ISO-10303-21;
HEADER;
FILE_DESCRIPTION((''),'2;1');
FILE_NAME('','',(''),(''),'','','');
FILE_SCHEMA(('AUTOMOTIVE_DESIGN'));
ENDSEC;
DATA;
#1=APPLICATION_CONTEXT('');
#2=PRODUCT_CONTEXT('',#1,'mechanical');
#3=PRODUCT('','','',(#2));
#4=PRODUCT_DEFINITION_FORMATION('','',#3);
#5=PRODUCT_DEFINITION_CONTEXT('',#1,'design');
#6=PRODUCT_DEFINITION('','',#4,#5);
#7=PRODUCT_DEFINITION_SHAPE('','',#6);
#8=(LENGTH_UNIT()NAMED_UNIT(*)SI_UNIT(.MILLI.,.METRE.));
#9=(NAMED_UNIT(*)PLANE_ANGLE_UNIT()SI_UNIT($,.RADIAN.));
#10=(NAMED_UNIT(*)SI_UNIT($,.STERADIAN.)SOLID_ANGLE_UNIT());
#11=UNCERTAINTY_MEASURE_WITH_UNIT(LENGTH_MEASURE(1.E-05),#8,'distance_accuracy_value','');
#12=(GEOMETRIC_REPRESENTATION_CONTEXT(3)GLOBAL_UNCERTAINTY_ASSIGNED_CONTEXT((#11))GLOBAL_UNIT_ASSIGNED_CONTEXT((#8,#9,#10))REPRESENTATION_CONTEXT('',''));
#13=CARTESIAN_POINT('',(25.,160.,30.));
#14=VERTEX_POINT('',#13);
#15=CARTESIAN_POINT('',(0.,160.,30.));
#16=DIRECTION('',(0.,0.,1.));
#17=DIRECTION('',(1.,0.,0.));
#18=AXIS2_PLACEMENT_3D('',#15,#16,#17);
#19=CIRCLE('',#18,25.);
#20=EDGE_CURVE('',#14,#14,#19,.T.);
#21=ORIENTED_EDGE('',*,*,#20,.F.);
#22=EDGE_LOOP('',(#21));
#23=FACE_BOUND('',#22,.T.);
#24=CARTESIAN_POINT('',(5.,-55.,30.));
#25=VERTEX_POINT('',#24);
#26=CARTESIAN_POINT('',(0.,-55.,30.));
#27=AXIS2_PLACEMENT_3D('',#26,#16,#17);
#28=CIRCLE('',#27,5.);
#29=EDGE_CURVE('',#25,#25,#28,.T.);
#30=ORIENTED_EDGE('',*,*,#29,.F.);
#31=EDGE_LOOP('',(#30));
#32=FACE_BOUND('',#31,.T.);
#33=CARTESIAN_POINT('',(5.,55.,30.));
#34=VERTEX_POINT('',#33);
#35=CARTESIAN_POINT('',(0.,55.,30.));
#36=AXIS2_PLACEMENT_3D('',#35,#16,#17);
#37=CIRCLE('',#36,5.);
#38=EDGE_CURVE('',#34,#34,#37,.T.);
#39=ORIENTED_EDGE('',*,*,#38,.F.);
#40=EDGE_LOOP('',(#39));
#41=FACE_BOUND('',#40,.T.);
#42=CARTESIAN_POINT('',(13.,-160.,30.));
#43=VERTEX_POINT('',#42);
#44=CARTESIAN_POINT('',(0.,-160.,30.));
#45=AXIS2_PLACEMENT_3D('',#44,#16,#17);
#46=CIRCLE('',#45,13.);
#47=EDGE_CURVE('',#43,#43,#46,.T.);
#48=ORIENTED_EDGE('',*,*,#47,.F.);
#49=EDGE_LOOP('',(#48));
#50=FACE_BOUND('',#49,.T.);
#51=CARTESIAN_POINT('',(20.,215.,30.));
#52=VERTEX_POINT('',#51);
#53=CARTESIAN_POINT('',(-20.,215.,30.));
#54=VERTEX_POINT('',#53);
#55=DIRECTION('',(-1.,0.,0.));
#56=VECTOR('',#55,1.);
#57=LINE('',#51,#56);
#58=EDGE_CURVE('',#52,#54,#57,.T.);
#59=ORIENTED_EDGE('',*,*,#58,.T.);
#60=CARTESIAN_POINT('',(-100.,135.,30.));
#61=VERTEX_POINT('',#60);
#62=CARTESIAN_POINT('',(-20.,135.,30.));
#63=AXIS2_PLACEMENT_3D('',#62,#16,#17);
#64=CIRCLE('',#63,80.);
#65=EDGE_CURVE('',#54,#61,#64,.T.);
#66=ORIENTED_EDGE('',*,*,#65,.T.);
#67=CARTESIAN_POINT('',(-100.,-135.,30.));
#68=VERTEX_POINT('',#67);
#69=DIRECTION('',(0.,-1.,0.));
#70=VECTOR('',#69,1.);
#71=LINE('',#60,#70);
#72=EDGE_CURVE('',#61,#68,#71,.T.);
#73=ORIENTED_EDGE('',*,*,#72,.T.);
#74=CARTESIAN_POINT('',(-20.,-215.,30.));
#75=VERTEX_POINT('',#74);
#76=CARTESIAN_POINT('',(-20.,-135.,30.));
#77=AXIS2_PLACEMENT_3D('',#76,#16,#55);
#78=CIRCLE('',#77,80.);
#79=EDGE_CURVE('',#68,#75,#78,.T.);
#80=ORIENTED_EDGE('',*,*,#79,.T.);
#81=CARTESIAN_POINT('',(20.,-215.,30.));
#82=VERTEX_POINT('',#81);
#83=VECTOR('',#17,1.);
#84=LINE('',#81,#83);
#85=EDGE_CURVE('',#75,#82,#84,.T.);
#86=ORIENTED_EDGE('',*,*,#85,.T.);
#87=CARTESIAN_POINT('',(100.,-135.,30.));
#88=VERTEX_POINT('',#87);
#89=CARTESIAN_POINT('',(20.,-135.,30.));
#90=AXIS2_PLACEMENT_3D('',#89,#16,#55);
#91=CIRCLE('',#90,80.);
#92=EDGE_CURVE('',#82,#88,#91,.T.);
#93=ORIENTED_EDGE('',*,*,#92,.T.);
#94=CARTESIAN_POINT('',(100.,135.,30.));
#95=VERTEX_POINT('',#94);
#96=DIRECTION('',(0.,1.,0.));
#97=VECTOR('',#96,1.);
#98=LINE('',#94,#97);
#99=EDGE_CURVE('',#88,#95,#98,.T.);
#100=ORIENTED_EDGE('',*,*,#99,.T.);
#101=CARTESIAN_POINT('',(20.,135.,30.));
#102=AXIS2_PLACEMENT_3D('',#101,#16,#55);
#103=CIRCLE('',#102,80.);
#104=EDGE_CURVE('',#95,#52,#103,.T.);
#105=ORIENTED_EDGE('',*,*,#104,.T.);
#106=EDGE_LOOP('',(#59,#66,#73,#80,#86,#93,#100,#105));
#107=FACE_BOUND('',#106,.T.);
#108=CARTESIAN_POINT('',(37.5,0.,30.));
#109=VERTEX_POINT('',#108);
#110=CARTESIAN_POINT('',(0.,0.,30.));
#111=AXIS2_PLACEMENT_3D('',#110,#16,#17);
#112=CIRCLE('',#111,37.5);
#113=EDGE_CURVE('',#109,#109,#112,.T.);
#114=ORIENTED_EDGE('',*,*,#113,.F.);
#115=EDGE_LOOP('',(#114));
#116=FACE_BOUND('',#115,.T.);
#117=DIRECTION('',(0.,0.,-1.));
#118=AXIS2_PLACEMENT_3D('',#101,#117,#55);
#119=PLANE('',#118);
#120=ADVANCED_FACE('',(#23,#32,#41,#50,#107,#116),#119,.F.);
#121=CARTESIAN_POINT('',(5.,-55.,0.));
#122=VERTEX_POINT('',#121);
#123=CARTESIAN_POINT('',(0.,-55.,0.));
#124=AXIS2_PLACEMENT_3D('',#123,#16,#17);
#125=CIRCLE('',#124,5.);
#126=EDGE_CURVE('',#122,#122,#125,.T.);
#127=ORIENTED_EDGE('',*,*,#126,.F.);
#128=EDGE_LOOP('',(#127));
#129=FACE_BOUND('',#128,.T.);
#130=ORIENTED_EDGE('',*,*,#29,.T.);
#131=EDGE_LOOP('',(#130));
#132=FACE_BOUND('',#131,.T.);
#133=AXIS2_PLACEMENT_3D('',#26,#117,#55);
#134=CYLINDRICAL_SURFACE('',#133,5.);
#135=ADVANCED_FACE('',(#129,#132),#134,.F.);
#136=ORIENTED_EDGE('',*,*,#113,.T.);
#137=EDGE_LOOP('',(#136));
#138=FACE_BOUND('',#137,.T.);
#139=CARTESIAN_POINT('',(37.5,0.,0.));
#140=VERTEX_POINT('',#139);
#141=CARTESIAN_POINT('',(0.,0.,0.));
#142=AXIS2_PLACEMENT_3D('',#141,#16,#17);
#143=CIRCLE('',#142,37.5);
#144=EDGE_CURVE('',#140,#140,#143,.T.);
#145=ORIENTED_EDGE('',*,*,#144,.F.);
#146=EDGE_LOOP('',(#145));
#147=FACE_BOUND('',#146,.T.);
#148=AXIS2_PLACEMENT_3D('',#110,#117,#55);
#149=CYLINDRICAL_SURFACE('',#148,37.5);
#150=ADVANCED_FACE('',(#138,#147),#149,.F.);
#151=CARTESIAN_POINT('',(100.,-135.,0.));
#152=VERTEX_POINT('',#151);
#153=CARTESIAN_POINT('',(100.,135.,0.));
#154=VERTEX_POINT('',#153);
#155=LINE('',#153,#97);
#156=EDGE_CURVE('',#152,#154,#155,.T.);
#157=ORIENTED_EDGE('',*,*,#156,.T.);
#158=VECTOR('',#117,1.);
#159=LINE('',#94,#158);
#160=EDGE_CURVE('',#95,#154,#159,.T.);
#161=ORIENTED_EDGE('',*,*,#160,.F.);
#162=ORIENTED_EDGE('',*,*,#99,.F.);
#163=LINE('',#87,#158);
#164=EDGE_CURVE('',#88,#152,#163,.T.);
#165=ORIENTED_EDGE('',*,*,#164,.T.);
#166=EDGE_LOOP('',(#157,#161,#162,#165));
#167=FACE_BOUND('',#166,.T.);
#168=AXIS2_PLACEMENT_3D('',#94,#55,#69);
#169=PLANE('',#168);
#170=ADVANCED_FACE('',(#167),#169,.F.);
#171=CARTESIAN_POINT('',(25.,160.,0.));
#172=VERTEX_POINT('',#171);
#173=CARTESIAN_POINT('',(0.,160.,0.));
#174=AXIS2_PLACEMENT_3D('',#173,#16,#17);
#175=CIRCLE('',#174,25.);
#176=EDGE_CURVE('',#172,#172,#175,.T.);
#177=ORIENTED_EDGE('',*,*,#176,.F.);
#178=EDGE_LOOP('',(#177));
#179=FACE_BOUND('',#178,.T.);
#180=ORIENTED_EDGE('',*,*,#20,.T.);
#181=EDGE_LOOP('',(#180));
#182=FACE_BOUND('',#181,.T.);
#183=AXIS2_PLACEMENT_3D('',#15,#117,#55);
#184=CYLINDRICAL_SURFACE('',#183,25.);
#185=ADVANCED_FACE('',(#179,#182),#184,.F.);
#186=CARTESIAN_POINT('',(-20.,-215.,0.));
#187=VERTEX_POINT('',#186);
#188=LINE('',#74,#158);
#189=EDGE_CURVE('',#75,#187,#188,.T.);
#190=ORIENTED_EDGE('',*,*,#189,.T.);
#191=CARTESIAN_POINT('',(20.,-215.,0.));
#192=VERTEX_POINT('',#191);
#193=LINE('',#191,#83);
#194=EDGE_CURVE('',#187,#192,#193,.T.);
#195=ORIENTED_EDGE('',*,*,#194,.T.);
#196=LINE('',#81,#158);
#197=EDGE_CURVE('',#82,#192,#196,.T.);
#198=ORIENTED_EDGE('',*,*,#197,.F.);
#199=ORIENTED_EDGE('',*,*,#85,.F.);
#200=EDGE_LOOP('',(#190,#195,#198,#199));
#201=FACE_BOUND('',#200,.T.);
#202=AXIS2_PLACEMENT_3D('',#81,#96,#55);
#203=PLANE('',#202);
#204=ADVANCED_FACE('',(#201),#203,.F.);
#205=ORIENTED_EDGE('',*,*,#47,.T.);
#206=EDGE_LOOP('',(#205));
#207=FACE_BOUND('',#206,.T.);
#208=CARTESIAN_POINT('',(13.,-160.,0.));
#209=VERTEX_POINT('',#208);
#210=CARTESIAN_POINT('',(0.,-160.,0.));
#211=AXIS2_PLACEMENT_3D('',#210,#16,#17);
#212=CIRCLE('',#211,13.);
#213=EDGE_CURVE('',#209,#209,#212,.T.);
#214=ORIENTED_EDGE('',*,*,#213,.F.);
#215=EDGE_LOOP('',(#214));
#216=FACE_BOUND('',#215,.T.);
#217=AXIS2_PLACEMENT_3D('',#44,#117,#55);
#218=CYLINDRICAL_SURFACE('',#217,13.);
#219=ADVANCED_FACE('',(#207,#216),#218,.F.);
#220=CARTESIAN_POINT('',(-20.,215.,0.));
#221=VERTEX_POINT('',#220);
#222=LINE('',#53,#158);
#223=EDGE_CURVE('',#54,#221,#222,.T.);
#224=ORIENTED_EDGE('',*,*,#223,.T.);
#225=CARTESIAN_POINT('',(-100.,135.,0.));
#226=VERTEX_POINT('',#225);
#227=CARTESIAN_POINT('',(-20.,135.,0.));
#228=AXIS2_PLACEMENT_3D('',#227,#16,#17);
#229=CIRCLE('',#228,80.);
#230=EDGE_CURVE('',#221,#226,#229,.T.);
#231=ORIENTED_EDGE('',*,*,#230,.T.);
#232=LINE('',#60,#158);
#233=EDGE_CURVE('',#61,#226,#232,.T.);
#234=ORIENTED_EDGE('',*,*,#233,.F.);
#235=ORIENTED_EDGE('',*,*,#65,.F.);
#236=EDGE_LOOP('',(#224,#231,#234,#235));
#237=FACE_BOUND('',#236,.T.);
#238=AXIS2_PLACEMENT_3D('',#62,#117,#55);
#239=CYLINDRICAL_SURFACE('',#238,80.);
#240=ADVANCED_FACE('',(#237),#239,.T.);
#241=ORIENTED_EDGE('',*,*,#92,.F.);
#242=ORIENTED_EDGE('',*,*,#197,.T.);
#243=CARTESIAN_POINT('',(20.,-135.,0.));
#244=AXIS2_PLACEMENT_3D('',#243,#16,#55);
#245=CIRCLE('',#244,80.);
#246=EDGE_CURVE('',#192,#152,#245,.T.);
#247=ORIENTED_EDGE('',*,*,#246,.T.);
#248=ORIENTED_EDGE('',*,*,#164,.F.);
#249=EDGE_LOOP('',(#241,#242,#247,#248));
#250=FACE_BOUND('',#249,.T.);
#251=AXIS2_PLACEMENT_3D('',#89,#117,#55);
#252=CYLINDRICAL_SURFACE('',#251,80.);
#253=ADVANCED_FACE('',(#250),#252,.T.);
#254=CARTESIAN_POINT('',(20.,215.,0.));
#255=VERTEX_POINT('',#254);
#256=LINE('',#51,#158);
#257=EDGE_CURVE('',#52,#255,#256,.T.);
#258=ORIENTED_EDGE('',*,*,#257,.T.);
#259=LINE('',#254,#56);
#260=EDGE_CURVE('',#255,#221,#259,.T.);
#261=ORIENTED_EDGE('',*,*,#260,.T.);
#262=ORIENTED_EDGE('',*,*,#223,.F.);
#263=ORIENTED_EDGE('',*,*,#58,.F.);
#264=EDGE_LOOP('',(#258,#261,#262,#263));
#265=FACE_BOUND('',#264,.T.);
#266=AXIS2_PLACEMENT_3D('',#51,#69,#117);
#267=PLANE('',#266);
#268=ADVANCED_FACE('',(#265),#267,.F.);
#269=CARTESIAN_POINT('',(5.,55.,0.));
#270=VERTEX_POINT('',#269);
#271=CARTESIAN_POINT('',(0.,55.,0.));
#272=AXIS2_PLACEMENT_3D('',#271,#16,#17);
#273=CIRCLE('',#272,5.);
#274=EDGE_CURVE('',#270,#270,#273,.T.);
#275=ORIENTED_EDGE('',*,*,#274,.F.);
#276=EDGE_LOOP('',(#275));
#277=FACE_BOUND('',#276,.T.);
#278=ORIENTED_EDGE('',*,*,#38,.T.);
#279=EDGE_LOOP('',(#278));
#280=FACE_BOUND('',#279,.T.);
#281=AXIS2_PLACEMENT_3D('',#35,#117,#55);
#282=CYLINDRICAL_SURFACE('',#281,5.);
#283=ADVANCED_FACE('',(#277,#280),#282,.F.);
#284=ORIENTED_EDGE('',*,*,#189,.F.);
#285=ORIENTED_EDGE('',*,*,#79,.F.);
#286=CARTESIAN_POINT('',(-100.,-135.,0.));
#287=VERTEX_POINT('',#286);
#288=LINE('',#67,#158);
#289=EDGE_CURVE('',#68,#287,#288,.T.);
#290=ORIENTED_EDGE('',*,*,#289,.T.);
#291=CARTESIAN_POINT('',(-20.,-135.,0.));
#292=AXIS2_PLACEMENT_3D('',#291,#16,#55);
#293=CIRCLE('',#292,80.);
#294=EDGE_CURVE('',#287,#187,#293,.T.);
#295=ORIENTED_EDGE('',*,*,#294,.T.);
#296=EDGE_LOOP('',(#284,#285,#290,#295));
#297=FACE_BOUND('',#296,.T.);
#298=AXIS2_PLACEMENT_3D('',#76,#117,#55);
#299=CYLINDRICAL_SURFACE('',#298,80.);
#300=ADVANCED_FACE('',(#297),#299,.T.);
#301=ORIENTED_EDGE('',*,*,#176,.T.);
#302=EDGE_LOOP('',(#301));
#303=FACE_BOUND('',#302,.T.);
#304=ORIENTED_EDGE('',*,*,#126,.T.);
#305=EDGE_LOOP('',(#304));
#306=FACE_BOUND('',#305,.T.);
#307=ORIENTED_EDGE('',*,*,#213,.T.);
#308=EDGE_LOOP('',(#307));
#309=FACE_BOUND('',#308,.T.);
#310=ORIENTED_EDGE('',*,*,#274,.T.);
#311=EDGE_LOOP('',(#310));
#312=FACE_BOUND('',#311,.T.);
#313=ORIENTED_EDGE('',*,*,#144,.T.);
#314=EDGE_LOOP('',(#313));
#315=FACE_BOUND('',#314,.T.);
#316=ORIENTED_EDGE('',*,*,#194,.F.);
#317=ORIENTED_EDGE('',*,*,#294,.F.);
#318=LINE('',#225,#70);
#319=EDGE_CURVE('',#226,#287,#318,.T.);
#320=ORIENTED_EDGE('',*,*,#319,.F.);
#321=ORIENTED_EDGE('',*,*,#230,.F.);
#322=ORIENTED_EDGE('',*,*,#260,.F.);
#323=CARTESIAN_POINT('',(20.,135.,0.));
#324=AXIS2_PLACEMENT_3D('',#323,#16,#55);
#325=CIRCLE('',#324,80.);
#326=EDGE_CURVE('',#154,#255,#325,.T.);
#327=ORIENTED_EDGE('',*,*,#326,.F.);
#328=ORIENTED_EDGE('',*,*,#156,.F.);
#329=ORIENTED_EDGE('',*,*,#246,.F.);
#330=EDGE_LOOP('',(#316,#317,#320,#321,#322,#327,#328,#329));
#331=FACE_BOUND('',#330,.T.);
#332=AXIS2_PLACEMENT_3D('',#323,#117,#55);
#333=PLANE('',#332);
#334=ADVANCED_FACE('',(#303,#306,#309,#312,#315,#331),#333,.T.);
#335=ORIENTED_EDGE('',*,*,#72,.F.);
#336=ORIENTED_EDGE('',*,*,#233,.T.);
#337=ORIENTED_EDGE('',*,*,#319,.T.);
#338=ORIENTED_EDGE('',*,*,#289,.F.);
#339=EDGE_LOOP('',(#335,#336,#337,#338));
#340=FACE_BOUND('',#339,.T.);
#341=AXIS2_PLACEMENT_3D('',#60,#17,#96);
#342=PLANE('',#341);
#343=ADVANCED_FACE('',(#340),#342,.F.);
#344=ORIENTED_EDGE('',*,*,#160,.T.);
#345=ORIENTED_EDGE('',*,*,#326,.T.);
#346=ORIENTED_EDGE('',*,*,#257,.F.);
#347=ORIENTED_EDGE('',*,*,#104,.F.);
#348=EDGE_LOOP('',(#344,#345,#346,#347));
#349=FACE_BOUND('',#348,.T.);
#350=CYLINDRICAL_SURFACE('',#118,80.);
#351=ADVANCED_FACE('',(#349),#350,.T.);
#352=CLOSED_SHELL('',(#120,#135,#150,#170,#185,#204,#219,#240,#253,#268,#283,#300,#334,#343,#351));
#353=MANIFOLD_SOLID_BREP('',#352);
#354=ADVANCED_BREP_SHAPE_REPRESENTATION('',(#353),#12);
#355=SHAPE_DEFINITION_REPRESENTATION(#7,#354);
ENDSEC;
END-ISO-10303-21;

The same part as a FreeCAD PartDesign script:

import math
import FreeCAD as App
import Part
import Sketcher
from FreeCAD import Vector
Q = App.Units.Quantity

doc = App.newDocument("Part")
params = doc.addObject("Spreadsheet::Sheet", "Params")
for row, (alias, value) in enumerate([
    ("sketch1_diameter", "26 mm"),
    ("sketch1_diameter2", "10 mm"),
    ("sketch1_diameter3", "75 mm"),
    ("sketch1_diameter4", "50 mm"),
    ("sketch1_radius", "80 mm"),
    ("pad1_length", "30 mm"),
], start=1):
    params.set(f"A{row}", alias)
    params.set(f"B{row}", "=" + value)
    params.setAlias(f"B{row}", alias)

body = doc.addObject("PartDesign::Body", "Body")

# Sketch on XY plane
sketch1 = doc.addObject("Sketcher::SketchObject", "Sketch")
body.addObject(sketch1)
sketch1.AttachmentSupport = (doc.XY_Plane, [""])
sketch1.MapMode = "FlatFace"
sketch1.addGeometry(Part.LineSegment(Vector(20, 215, 0), Vector(-20, 215, 0)), False)
sketch1.addGeometry(Part.ArcOfCircle(Part.Circle(Vector(-20, 135, 0), Vector(0, 0, 1), 80), math.radians(90), math.radians(180)), False)
sketch1.addGeometry(Part.LineSegment(Vector(-100, 135, 0), Vector(-100, -135, 0)), False)
sketch1.addGeometry(Part.ArcOfCircle(Part.Circle(Vector(-20, -135, 0), Vector(0, 0, 1), 80), math.radians(180), math.radians(270)), False)
sketch1.addGeometry(Part.LineSegment(Vector(-20, -215, 0), Vector(20, -215, 0)), False)
sketch1.addGeometry(Part.ArcOfCircle(Part.Circle(Vector(20, -135, 0), Vector(0, 0, 1), 80), math.radians(-90), math.radians(0)), False)
sketch1.addGeometry(Part.LineSegment(Vector(100, -135, 0), Vector(100, 135, 0)), False)
sketch1.addGeometry(Part.ArcOfCircle(Part.Circle(Vector(20, 135, 0), Vector(0, 0, 1), 80), math.radians(0), math.radians(90)), False)
sketch1.addGeometry(Part.Circle(Vector(0, -160, 0), Vector(0, 0, 1), 13), False)
sketch1.addGeometry(Part.Circle(Vector(0, -55, 0), Vector(0, 0, 1), 5), False)
sketch1.addGeometry(Part.Circle(Vector(0, 0, 0), Vector(0, 0, 1), 38), False)
sketch1.addGeometry(Part.Circle(Vector(0, 55, 0), Vector(0, 0, 1), 5), False)
sketch1.addGeometry(Part.Circle(Vector(0, 160, 0), Vector(0, 0, 1), 25), False)
sketch1.addConstraint(Sketcher.Constraint("Tangent", 0, 2, 1, 1))
sketch1.addConstraint(Sketcher.Constraint("Tangent", 1, 2, 2, 1))
sketch1.addConstraint(Sketcher.Constraint("Tangent", 2, 2, 3, 1))
sketch1.addConstraint(Sketcher.Constraint("Tangent", 3, 2, 4, 1))
sketch1.addConstraint(Sketcher.Constraint("Tangent", 4, 2, 5, 1))
sketch1.addConstraint(Sketcher.Constraint("Tangent", 5, 2, 6, 1))
sketch1.addConstraint(Sketcher.Constraint("Tangent", 6, 2, 7, 1))
sketch1.addConstraint(Sketcher.Constraint("Tangent", 7, 2, 0, 1))
sketch1.addConstraint(Sketcher.Constraint("Horizontal", 0))
sketch1.addConstraint(Sketcher.Constraint("Vertical", 2))
sketch1.addConstraint(Sketcher.Constraint("Horizontal", 4))
sketch1.addConstraint(Sketcher.Constraint("Vertical", 6))
sketch1.addConstraint(Sketcher.Constraint("Coincident", 10, 3, -1, 1))
sketch1.addConstraint(Sketcher.Constraint("Equal", 1, 3))
sketch1.addConstraint(Sketcher.Constraint("Equal", 3, 5))
sketch1.addConstraint(Sketcher.Constraint("Equal", 5, 7))
sketch1.addConstraint(Sketcher.Constraint("Equal", 9, 11))
sketch1.addConstraint(Sketcher.Constraint("Symmetric", 1, 3, 5, 3, -1, 1))
sketch1.addConstraint(Sketcher.Constraint("Symmetric", 9, 3, 11, 3, -1, 1))
sketch1.addConstraint(Sketcher.Constraint("Symmetric", 8, 3, 12, 3, -1, 1))
sketch1.addConstraint(Sketcher.Constraint("PointOnObject", 8, 3, -2))
sketch1.addConstraint(Sketcher.Constraint("PointOnObject", 9, 3, -2))
sketch1.addConstraint(Sketcher.Constraint("Diameter", 8, Q("26 mm")))
sketch1.addConstraint(Sketcher.Constraint("Diameter", 9, Q("10 mm")))
sketch1.addConstraint(Sketcher.Constraint("Diameter", 10, Q("75 mm")))
sketch1.addConstraint(Sketcher.Constraint("Diameter", 12, Q("50 mm")))
sketch1.addConstraint(Sketcher.Constraint("Radius", 1, Q("80 mm")))
sketch1.addConstraint(Sketcher.Constraint("DistanceX", 0, 2, 0, 1, Q("40 mm")))
sketch1.addConstraint(Sketcher.Constraint("DistanceY", 2, 2, 2, 1, Q("270 mm")))
sketch1.addConstraint(Sketcher.Constraint("DistanceY", 8, 3, -1, 1, Q("160 mm")))
sketch1.addConstraint(Sketcher.Constraint("DistanceY", 9, 3, -1, 1, Q("55 mm")))
sketch1.setExpression("Constraints[22]", "Params.sketch1_diameter")
sketch1.setExpression("Constraints[23]", "Params.sketch1_diameter2")
sketch1.setExpression("Constraints[24]", "Params.sketch1_diameter3")
sketch1.setExpression("Constraints[25]", "Params.sketch1_diameter4")
sketch1.setExpression("Constraints[26]", "Params.sketch1_radius")
pad1 = doc.addObject("PartDesign::Pad", "Pad")
body.addObject(pad1)
pad1.Profile = sketch1
pad1.setExpression("Length", "Params.pad1_length")

doc.recompute()
